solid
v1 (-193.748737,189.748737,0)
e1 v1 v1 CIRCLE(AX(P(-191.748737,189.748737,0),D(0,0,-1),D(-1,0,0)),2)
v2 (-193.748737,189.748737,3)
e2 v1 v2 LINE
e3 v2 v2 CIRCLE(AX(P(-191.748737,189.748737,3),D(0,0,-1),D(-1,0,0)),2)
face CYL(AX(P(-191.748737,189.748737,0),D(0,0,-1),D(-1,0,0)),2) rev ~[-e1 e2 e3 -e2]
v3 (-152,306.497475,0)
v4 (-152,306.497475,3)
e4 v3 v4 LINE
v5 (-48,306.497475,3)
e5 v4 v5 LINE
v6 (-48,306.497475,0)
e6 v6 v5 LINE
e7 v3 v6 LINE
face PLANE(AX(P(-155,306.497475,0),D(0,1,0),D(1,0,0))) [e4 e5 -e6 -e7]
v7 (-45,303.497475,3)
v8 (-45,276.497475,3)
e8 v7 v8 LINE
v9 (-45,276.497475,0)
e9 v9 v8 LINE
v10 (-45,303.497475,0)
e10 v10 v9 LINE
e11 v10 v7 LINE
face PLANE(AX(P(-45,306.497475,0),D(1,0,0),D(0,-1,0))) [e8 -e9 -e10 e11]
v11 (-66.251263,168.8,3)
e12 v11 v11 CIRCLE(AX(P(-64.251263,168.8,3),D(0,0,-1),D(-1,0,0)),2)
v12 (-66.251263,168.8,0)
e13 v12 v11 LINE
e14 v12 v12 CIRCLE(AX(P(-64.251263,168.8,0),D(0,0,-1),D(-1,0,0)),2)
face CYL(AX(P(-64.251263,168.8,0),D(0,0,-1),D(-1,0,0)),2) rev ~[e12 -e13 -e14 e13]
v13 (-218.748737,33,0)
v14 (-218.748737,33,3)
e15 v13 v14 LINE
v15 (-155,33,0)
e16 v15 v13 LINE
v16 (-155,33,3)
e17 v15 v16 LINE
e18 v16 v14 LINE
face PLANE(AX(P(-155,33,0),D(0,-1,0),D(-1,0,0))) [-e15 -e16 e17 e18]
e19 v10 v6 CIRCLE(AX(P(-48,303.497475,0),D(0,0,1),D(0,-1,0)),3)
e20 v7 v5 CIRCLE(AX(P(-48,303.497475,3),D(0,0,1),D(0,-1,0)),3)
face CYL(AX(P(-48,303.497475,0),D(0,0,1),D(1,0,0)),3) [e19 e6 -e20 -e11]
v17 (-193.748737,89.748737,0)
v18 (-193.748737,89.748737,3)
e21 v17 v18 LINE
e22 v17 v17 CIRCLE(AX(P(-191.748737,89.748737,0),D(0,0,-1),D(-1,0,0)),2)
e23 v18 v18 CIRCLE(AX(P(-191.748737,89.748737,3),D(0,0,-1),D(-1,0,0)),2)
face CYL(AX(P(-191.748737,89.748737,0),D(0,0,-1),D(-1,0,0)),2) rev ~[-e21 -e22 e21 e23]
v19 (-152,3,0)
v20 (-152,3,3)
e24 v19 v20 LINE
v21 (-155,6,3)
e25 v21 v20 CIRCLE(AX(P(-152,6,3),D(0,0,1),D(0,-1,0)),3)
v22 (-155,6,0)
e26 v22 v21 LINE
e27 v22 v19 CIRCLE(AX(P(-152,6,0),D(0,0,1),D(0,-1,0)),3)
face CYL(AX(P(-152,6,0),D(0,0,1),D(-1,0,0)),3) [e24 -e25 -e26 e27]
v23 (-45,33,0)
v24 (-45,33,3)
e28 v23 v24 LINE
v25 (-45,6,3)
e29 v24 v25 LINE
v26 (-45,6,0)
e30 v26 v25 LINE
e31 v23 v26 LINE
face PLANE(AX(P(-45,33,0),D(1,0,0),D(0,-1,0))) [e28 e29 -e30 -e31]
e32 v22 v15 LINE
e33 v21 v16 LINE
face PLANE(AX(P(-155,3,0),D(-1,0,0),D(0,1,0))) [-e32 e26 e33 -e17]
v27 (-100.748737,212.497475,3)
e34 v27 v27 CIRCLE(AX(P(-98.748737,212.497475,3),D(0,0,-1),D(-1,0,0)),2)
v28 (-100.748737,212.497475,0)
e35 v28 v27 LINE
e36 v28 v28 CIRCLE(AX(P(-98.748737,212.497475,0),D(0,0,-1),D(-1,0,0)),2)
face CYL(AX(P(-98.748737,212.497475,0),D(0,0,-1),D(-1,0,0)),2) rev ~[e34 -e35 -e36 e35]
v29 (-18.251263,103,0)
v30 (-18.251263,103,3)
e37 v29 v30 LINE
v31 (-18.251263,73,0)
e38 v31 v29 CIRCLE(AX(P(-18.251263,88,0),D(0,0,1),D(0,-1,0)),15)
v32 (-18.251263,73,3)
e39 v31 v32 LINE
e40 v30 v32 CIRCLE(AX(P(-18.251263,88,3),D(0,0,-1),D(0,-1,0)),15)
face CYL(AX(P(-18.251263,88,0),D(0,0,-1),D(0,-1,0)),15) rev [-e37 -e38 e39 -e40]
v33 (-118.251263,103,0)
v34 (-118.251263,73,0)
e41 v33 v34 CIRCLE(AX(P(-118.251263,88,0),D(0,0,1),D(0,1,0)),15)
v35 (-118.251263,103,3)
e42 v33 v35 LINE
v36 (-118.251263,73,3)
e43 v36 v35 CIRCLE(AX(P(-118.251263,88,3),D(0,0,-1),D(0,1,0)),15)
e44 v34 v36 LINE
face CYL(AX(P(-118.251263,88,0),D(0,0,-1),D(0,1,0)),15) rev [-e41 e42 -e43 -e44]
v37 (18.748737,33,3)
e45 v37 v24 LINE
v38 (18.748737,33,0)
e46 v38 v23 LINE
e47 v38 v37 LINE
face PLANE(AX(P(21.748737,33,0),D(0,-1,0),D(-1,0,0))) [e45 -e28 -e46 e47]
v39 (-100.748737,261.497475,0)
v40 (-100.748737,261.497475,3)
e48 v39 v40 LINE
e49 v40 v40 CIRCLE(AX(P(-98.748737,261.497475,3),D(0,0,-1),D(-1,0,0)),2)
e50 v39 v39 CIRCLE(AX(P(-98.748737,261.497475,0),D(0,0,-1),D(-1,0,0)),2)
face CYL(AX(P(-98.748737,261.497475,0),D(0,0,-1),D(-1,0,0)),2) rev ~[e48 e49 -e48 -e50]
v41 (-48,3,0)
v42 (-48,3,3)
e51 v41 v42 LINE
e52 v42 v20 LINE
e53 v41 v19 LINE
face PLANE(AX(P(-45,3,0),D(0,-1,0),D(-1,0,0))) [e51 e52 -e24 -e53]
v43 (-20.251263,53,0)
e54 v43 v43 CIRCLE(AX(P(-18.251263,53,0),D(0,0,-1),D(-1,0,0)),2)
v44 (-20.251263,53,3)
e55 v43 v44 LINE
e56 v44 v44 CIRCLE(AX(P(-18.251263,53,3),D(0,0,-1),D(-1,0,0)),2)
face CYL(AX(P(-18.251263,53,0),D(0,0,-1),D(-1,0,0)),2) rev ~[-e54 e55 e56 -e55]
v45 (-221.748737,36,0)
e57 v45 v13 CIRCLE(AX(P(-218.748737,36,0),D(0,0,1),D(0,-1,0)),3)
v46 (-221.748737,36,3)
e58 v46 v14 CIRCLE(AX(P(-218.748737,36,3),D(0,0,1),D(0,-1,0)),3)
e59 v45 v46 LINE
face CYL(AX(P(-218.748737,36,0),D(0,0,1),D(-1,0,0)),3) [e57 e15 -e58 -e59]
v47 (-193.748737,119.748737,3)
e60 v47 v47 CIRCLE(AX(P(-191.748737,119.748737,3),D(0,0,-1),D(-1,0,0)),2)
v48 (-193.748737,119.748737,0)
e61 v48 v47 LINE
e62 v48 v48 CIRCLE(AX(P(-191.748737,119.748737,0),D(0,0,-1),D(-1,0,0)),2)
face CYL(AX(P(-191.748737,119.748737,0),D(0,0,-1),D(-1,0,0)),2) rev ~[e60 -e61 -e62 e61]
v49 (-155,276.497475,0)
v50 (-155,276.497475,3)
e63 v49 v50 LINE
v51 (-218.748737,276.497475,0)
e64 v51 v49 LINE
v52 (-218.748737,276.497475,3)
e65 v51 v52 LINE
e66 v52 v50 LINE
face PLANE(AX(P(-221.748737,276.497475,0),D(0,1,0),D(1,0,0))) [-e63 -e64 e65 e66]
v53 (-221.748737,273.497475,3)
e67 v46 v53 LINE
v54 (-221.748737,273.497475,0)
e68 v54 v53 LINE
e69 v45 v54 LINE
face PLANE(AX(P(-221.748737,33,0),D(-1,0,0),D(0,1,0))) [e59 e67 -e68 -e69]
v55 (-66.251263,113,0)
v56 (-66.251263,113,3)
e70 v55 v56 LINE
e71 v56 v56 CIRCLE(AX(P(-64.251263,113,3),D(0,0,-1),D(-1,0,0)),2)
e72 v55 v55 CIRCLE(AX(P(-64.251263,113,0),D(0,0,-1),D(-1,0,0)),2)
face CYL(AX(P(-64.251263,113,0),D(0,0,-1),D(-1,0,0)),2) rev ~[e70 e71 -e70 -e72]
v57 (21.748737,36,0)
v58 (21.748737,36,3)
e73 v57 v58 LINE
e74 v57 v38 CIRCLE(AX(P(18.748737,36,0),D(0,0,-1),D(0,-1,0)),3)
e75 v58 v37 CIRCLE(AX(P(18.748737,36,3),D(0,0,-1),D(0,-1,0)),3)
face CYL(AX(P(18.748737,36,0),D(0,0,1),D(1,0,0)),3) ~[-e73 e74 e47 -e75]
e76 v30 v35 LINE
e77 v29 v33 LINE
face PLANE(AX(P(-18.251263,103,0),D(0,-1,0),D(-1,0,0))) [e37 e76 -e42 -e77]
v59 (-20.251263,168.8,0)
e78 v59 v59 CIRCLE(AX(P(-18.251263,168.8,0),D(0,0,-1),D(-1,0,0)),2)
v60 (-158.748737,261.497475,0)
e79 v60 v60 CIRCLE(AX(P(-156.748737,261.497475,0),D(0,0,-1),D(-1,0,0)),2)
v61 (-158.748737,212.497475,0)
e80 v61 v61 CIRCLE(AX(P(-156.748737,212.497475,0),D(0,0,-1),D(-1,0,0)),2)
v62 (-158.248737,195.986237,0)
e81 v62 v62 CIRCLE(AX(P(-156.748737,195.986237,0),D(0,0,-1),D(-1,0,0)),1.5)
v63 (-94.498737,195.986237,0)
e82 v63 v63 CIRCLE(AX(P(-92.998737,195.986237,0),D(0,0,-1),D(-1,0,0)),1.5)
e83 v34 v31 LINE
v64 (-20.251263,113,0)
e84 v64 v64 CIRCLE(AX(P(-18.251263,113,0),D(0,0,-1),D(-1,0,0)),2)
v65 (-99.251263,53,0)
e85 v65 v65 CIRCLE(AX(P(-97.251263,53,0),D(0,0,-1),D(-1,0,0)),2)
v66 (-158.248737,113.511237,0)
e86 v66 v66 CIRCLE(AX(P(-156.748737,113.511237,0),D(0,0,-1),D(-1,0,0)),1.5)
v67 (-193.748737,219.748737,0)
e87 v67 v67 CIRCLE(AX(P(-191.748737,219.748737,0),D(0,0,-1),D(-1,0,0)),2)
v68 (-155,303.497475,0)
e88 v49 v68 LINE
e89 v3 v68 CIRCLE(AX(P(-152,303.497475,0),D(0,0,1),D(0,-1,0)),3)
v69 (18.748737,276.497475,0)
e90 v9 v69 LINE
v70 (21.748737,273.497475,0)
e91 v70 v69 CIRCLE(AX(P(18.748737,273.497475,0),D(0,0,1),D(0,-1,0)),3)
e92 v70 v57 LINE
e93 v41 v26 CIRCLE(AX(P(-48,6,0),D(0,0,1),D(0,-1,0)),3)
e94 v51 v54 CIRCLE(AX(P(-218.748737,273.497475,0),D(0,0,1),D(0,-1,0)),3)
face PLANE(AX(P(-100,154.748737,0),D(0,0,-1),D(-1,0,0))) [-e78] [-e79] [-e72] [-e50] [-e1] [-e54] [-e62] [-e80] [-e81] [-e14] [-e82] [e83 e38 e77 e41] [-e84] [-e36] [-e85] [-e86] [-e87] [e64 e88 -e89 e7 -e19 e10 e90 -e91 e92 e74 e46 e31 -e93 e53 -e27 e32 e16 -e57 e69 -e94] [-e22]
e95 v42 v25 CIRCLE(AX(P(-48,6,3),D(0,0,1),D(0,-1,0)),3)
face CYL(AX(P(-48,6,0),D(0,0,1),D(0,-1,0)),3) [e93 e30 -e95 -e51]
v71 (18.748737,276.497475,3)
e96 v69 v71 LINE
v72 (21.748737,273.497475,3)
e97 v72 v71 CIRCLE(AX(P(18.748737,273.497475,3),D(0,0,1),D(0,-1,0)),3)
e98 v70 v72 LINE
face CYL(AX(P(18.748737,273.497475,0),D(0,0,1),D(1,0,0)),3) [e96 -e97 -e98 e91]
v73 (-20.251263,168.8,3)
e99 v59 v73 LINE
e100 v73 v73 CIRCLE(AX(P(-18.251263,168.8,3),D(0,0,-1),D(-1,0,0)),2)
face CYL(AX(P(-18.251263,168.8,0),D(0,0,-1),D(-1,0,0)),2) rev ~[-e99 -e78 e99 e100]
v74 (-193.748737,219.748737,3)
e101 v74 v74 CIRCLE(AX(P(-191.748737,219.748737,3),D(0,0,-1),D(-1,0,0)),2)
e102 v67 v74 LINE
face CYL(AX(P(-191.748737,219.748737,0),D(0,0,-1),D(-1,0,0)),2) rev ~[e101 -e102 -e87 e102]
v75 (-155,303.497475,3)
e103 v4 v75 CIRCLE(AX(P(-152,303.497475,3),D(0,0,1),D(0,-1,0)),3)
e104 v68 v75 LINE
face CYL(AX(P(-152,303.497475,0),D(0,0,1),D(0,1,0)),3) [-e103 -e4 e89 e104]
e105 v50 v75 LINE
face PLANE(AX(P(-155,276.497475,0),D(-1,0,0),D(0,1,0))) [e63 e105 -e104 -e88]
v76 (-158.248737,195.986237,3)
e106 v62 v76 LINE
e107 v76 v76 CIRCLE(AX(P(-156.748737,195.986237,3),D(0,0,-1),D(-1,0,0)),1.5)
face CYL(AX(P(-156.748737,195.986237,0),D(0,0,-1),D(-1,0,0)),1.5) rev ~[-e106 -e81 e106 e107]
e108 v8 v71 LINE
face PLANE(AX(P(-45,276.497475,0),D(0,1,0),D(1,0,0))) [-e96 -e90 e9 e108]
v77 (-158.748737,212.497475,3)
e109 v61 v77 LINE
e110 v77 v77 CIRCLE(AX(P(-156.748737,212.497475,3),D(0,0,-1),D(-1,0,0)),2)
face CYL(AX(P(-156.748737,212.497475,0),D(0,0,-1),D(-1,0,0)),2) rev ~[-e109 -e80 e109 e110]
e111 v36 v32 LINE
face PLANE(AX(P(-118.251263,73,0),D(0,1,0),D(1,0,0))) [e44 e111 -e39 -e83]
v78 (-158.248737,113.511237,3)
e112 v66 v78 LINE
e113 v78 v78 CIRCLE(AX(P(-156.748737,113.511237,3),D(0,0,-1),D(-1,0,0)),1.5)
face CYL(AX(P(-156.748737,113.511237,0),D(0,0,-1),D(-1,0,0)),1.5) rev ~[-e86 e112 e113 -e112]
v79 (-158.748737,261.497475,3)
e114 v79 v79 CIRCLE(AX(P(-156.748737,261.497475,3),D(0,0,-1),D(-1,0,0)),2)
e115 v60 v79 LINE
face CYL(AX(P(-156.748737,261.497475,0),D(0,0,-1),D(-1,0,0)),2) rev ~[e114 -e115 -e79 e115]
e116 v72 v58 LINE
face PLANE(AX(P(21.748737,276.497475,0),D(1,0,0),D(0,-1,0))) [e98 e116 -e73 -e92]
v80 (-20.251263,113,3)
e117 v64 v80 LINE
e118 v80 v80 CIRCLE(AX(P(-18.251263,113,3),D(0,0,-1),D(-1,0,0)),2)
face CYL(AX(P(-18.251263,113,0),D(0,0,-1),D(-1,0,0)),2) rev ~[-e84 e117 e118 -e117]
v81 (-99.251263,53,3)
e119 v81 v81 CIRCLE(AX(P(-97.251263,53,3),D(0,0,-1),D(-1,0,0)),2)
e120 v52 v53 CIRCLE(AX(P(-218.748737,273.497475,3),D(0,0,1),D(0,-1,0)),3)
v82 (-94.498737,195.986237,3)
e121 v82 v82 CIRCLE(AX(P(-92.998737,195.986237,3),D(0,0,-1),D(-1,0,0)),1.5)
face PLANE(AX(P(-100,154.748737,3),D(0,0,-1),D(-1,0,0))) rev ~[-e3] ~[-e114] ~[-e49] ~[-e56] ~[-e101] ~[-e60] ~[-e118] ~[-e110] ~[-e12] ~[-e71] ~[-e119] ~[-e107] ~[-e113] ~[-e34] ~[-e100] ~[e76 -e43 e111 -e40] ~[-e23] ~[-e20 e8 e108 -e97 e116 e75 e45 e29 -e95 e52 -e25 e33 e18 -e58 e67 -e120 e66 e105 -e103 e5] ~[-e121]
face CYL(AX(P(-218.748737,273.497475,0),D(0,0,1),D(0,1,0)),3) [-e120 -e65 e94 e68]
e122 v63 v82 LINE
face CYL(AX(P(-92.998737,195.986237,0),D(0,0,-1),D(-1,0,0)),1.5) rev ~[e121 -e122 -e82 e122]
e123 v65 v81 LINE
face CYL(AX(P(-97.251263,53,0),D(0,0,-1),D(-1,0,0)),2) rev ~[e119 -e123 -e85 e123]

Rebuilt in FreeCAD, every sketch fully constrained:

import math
import FreeCAD as App
import Part
import Sketcher
from FreeCAD import Vector
Q = App.Units.Quantity


def edges_at(feature, points):
    """Names of the edges that pass closest to the given points."""
    edges = feature.Shape.Edges
    near = lambda p: min(range(len(edges)), key=lambda i: edges[i].distToShape(Part.Vertex(*p))[0])
    return sorted({f"Edge{near(p) + 1}" for p in points})


def add_polygon(sketch, points):
    """Adds a closed chain of lines whose ends are joined by coincident constraints."""
    first, n = sketch.GeometryCount, len(points)
    for a, b in zip(points, points[1:] + points[:1]):
        sketch.addGeometry(Part.LineSegment(App.Vector(*a, 0), App.Vector(*b, 0)), False)
    for i in range(n):
        sketch.addConstraint(Sketcher.Constraint("Coincident", first + i, 2, first + (i + 1) % n, 1))

doc = App.newDocument("Part")
body = doc.addObject("PartDesign::Body", "Body")

# Sketch on XY plane
sketch1 = body.newObject("Sketcher::SketchObject", "Sketch")
sketch1.AttachmentSupport = (doc.getObject("XY_Plane"), [""])
sketch1.MapMode = "FlatFace"
add_polygon(sketch1, [(-200, 0), (0, 0), (24.748737, 24.748737), (24.748737, 284.748737), (0, 309.497475), (-200, 309.497475), (-224.748737, 284.748737), (-224.748737, 24.748737)])  # lines 0-7
sketch1.addConstraint([
    Sketcher.Constraint("Horizontal", 0),
    Sketcher.Constraint("Vertical", 2),
    Sketcher.Constraint("Horizontal", 4),
    Sketcher.Constraint("Vertical", 6),
    Sketcher.Constraint("Coincident", 0, 2, -1, 1),
    Sketcher.Constraint("PointOnObject", 3, 2, -2),
    Sketcher.Constraint("Perpendicular", 1, 3),
    Sketcher.Constraint("Perpendicular", 3, 5),
    Sketcher.Constraint("Perpendicular", 5, 7),
    Sketcher.Constraint("Horizontal", 2, 2, 5, 2),
    Sketcher.Constraint("Horizontal", 1, 2, 6, 2),
    Sketcher.Constraint("Vertical", 4, 2, 7, 2),
    Sketcher.Constraint("DistanceX", 0, 1, 0, 2, Q("200 mm")),
    Sketcher.Constraint("DistanceY", 2, 1, 2, 2, Q("260 mm")),
    Sketcher.Constraint("Distance", 1, Q("35 mm")),
])
pad1 = body.newObject("PartDesign::Pad", "Pad")
pad1.Profile = sketch1
pad1.Length = 3
doc.recompute()

fillet = body.newObject("PartDesign::Fillet", "Fillet")
fillet.Base = (pad1, edges_at(pad1, [
    (0, 0, 1.5),
    (-200, 0, 1.5),
    (-224.749, 24.749, 1.5),
    (-224.749, 284.749, 1.5),
    (-200, 309.497, 1.5),
    (0, 309.497, 1.5),
    (24.749, 284.749, 1.5),
    (24.749, 24.749, 1.5),
]))
fillet.Radius = 3

# Sketch on XY plane
sketch2 = body.newObject("Sketcher::SketchObject", "Sketch001")
sketch2.AttachmentSupport = (doc.getObject("XY_Plane"), [""])
sketch2.MapMode = "FlatFace"
add_polygon(sketch2, [(24.748737, 0), (-224.748737, 0), (-224.748737, 309.497475), (24.748737, 309.497475)])  # lines 0-3
add_polygon(sketch2, [(-45, 33), (21.748737, 33), (21.748737, 276.497475), (-45, 276.497475), (-45, 306.497475), (-155, 306.497475), (-155, 276.497475), (-221.748737, 276.497475), (-221.748737, 33), (-155, 33), (-155, 3), (-45, 3)])  # lines 4-15
sketch2.addConstraint([
    Sketcher.Constraint("Horizontal", 0),
    Sketcher.Constraint("Vertical", 1),
    Sketcher.Constraint("Horizontal", 2),
    Sketcher.Constraint("Vertical", 3),
    Sketcher.Constraint("Horizontal", 4),
    Sketcher.Constraint("Vertical", 5),
    Sketcher.Constraint("Horizontal", 6),
    Sketcher.Constraint("Vertical", 7),
    Sketcher.Constraint("Horizontal", 8),
    Sketcher.Constraint("Vertical", 9),
    Sketcher.Constraint("Horizontal", 10),
    Sketcher.Constraint("Vertical", 11),
    Sketcher.Constraint("Horizontal", 12),
    Sketcher.Constraint("Vertical", 13),
    Sketcher.Constraint("Horizontal", 14),
    Sketcher.Constraint("Vertical", 15),
    Sketcher.Constraint("PointOnObject", 0, 2, -1),
    Sketcher.Constraint("Horizontal", 6, 2, 9, 2),
    Sketcher.Constraint("Horizontal", 4, 2, 11, 2),
    Sketcher.Constraint("Vertical", 9, 2, 12, 2),
    Sketcher.Constraint("Vertical", 7, 2, 14, 2),
    Sketcher.Constraint("Equal", 6, 10),
    Sketcher.Constraint("Equal", 9, 13),
    Sketcher.Constraint("DistanceX", 8, 2, 8, 1, Q("110 mm")),
    Sketcher.Constraint("DistanceY", 7, 1, 7, 2, Q("30 mm")),
    Sketcher.Constraint("DistanceY", -1, 1, 4, 2, Q("33 mm")),
    Sketcher.Constraint("DistanceX", 6, 2, -1, 1, Q("45 mm")),
    Sketcher.Constraint("DistanceX", 4, 2, 3, 2, Q("3 mm")),
    Sketcher.Constraint("DistanceY", 5, 2, 2, 2, Q("33 mm")),
    Sketcher.Constraint("DistanceX", 1, 2, 10, 2, Q("3 mm")),
    Sketcher.Constraint("DistanceX", 0, 2, 0, 1, Q("249.497475 mm")),
    Sketcher.Constraint("DistanceY", 1, 1, 1, 2, Q("309.497475 mm")),
])
pocket1 = body.newObject("PartDesign::Pocket", "Pocket")
pocket1.Profile = sketch2
pocket1.Type = "ThroughAll"
pocket1.Reversed = True
doc.recompute()

fillet2 = body.newObject("PartDesign::Fillet", "Fillet001")
fillet2.Base = (pocket1, edges_at(pocket1, [
    (21.749, 33, 1.5),
    (21.749, 276.497, 1.5),
    (-45, 306.497, 1.5),
    (-155, 306.497, 1.5),
    (-221.749, 276.497, 1.5),
    (-221.749, 33, 1.5),
    (-155, 3, 1.5),
    (-45, 3, 1.5),
]))
fillet2.Radius = 3

# Sketch on XY plane
sketch3 = body.newObject("Sketcher::SketchObject", "Sketch002")
sketch3.AttachmentSupport = (doc.getObject("XY_Plane"), [""])
sketch3.MapMode = "FlatFace"
sketch3.addGeometry([
    Part.Circle(Vector(-191.748737, 189.748737, 0), Vector(0, 0, 1), 2),
    Part.Circle(Vector(-191.748737, 219.748737, 0), Vector(0, 0, 1), 2),
    Part.Circle(Vector(-191.748737, 89.748737, 0), Vector(0, 0, 1), 2),
    Part.Circle(Vector(-191.748737, 119.748737, 0), Vector(0, 0, 1), 2),
], False)
sketch3.addConstraint([
    Sketcher.Constraint("Equal", 0, 1),
    Sketcher.Constraint("Equal", 1, 2),
    Sketcher.Constraint("Equal", 2, 3),
    Sketcher.Constraint("Vertical", 0, 3, 1, 3),
    Sketcher.Constraint("Vertical", 1, 3, 2, 3),
    Sketcher.Constraint("Vertical", 2, 3, 3, 3),
    Sketcher.Constraint("Diameter", 0, Q("4 mm")),
    Sketcher.Constraint("DistanceY", 0, 3, 1, 3, Q("30 mm")),
    Sketcher.Constraint("DistanceY", 2, 3, 0, 3, Q("100 mm")),
    Sketcher.Constraint("DistanceY", 2, 3, 3, 3, Q("30 mm")),
    Sketcher.Constraint("DistanceX", 0, 3, -1, 1, Q("191.748737 mm")),
    Sketcher.Constraint("DistanceY", -1, 1, 0, 3, Q("189.748737 mm")),
])
pocket2 = body.newObject("PartDesign::Pocket", "Pocket001")
pocket2.Profile = sketch3
pocket2.Type = "ThroughAll"
pocket2.Reversed = True

# Sketch on XY plane
sketch4 = body.newObject("Sketcher::SketchObject", "Sketch003")
sketch4.AttachmentSupport = (doc.getObject("XY_Plane"), [""])
sketch4.MapMode = "FlatFace"
sketch4.addGeometry([
    Part.Circle(Vector(-97.251263, 53, 0), Vector(0, 0, 1), 2),
    Part.Circle(Vector(-18.251263, 53, 0), Vector(0, 0, 1), 2),
], False)
sketch4.addConstraint([
    Sketcher.Constraint("Equal", 0, 1),
    Sketcher.Constraint("Horizontal", 0, 3, 1, 3),
    Sketcher.Constraint("Diameter", 0, Q("4 mm")),
    Sketcher.Constraint("DistanceY", -1, 1, 0, 3, Q("53 mm")),
    Sketcher.Constraint("DistanceX", 0, 3, 1, 3, Q("79 mm")),
    Sketcher.Constraint("DistanceX", 0, 3, -1, 1, Q("97.251263 mm")),
])
pocket3 = body.newObject("PartDesign::Pocket", "Pocket002")
pocket3.Profile = sketch4
pocket3.Type = "ThroughAll"
pocket3.Reversed = True

# Sketch on XY plane
sketch5 = body.newObject("Sketcher::SketchObject", "Sketch004")
sketch5.AttachmentSupport = (doc.getObject("XY_Plane"), [""])
sketch5.MapMode = "FlatFace"
sketch5.addGeometry([
    Part.Circle(Vector(-156.748737, 195.986237, 0), Vector(0, 0, 1), 1.5),
    Part.Circle(Vector(-92.998737, 195.986237, 0), Vector(0, 0, 1), 1.5),
    Part.Circle(Vector(-156.748737, 113.511237, 0), Vector(0, 0, 1), 1.5),
], False)
sketch5.addConstraint([
    Sketcher.Constraint("Equal", 0, 1),
    Sketcher.Constraint("Equal", 1, 2),
    Sketcher.Constraint("Horizontal", 0, 3, 1, 3),
    Sketcher.Constraint("Vertical", 0, 3, 2, 3),
    Sketcher.Constraint("Diameter", 0, Q("3 mm")),
    Sketcher.Constraint("DistanceX", 0, 3, 1, 3, Q("63.75 mm")),
    Sketcher.Constraint("DistanceY", 2, 3, 0, 3, Q("82.475 mm")),
    Sketcher.Constraint("DistanceX", 0, 3, -1, 1, Q("156.748737 mm")),
    Sketcher.Constraint("DistanceY", -1, 1, 0, 3, Q("195.986237 mm")),
])
pocket4 = body.newObject("PartDesign::Pocket", "Pocket003")
pocket4.Profile = sketch5
pocket4.Type = "ThroughAll"
pocket4.Reversed = True

# Sketch on XY plane
sketch6 = body.newObject("Sketcher::SketchObject", "Sketch005")
sketch6.AttachmentSupport = (doc.getObject("XY_Plane"), [""])
sketch6.MapMode = "FlatFace"
sketch6.addGeometry([
    Part.Circle(Vector(-156.748737, 212.497475, 0), Vector(0, 0, 1), 2),
    Part.Circle(Vector(-98.748737, 212.497475, 0), Vector(0, 0, 1), 2),
    Part.Circle(Vector(-98.748737, 261.497475, 0), Vector(0, 0, 1), 2),
    Part.Circle(Vector(-156.748737, 261.497475, 0), Vector(0, 0, 1), 2),
], False)
sketch6.addConstraint([
    Sketcher.Constraint("Equal", 0, 1),
    Sketcher.Constraint("Equal", 1, 2),
    Sketcher.Constraint("Equal", 2, 3),
    Sketcher.Constraint("Horizontal", 0, 3, 1, 3),
    Sketcher.Constraint("Horizontal", 2, 3, 3, 3),
    Sketcher.Constraint("Vertical", 1, 3, 2, 3),
    Sketcher.Constraint("Vertical", 0, 3, 3, 3),
    Sketcher.Constraint("Diameter", 0, Q("4 mm")),
    Sketcher.Constraint("DistanceX", 0, 3, 1, 3, Q("58 mm")),
    Sketcher.Constraint("DistanceY", 1, 3, 2, 3, Q("49 mm")),
    Sketcher.Constraint("DistanceX", 0, 3, -1, 1, Q("156.748737 mm")),
    Sketcher.Constraint("DistanceY", -1, 1, 0, 3, Q("212.497475 mm")),
])
pocket5 = body.newObject("PartDesign::Pocket", "Pocket004")
pocket5.Profile = sketch6
pocket5.Type = "ThroughAll"
pocket5.Reversed = True

# Sketch on XY plane
sketch7 = body.newObject("Sketcher::SketchObject", "Sketch006")
sketch7.AttachmentSupport = (doc.getObject("XY_Plane"), [""])
sketch7.MapMode = "FlatFace"
sketch7.addGeometry([
    Part.Circle(Vector(-64.251263, 113, 0), Vector(0, 0, 1), 2),
    Part.Circle(Vector(-18.251263, 113, 0), Vector(0, 0, 1), 2),
    Part.Circle(Vector(-18.251263, 168.8, 0), Vector(0, 0, 1), 2),
    Part.Circle(Vector(-64.251263, 168.8, 0), Vector(0, 0, 1), 2),
], False)
sketch7.addConstraint([
    Sketcher.Constraint("Equal", 0, 1),
    Sketcher.Constraint("Equal", 1, 2),
    Sketcher.Constraint("Equal", 2, 3),
    Sketcher.Constraint("Horizontal", 0, 3, 1, 3),
    Sketcher.Constraint("Horizontal", 2, 3, 3, 3),
    Sketcher.Constraint("Vertical", 1, 3, 2, 3),
    Sketcher.Constraint("Vertical", 0, 3, 3, 3),
    Sketcher.Constraint("Diameter", 0, Q("4 mm")),
    Sketcher.Constraint("DistanceY", -1, 1, 0, 3, Q("113 mm")),
    Sketcher.Constraint("DistanceX", 0, 3, 1, 3, Q("46 mm")),
    Sketcher.Constraint("DistanceY", -1, 1, 2, 3, Q("168.8 mm")),
    Sketcher.Constraint("DistanceX", 0, 3, -1, 1, Q("64.251263 mm")),
])
pocket6 = body.newObject("PartDesign::Pocket", "Pocket005")
pocket6.Profile = sketch7
pocket6.Type = "ThroughAll"
pocket6.Reversed = True

# Sketch on XY plane
sketch8 = body.newObject("Sketcher::SketchObject", "Sketch007")
sketch8.AttachmentSupport = (doc.getObject("XY_Plane"), [""])
sketch8.MapMode = "FlatFace"
sketch8.addGeometry([
    Part.LineSegment(Vector(-18.251263, 73, 0), Vector(-118.251263, 73, 0)),
    Part.ArcOfCircle(Part.Circle(Vector(-118.251263, 88, 0), Vector(0, 0, 1), 15), math.radians(90), math.radians(270)),
    Part.LineSegment(Vector(-118.251263, 103, 0), Vector(-18.251263, 103, 0)),
    Part.ArcOfCircle(Part.Circle(Vector(-18.251263, 88, 0), Vector(0, 0, 1), 15), math.radians(-90), math.radians(90)),
], False)
sketch8.addConstraint([
    Sketcher.Constraint("Tangent", 0, 2, 1, 2),
    Sketcher.Constraint("Tangent", 1, 1, 2, 1),
    Sketcher.Constraint("Tangent", 2, 2, 3, 2),
    Sketcher.Constraint("Tangent", 3, 1, 0, 1),
    Sketcher.Constraint("Horizontal", 0),
    Sketcher.Constraint("Horizontal", 2),
    Sketcher.Constraint("Radius", 1, Q("15 mm")),
    Sketcher.Constraint("DistanceX", 0, 2, 0, 1, Q("100 mm")),
    Sketcher.Constraint("DistanceY", -1, 1, 1, 3, Q("88 mm")),
    Sketcher.Constraint("DistanceX", 1, 3, -1, 1, Q("118.251263 mm")),
])
pocket7 = body.newObject("PartDesign::Pocket", "Pocket006")
pocket7.Profile = sketch8
pocket7.Type = "ThroughAll"
pocket7.Reversed = True

doc.recompute()
